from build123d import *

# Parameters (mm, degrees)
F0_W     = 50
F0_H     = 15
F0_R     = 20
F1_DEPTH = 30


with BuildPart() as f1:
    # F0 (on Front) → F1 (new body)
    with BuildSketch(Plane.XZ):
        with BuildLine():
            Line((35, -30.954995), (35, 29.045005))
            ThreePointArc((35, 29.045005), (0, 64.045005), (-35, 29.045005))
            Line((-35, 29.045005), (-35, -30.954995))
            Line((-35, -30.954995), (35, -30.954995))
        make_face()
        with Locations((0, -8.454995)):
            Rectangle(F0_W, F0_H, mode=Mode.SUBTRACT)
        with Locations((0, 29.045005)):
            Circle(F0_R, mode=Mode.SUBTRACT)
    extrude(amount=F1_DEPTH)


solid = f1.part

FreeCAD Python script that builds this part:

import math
import FreeCAD as App
import Part
import Sketcher

V = App.Vector


def add_polygon(sketch, points):
    """Adds a closed chain of lines whose ends are joined by coincident constraints."""
    first, n = sketch.GeometryCount, len(points)
    for a, b in zip(points, points[1:] + points[:1]):
        sketch.addGeometry(Part.LineSegment(App.Vector(*a, 0), App.Vector(*b, 0)), False)
    for i in range(n):
        sketch.addConstraint(Sketcher.Constraint("Coincident", first + i, 2, first + (i + 1) % n, 1))

doc = App.newDocument("Part")
params = doc.addObject("Spreadsheet::Sheet", "Params")
for row, (alias, value) in enumerate([
    ("sketch1_diameter", "40 mm"),
    ("sketch1_radius", "35 mm"),
    ("sketch1_width", "50 mm"),
    ("sketch1_height", "60 mm"),
    ("sketch1_height2", "15 mm"),
    ("pad1_length", "30 mm"),
], start=1):
    params.set(f"A{row}", alias)
    params.set(f"B{row}", "=" + value)
    params.setAlias(f"B{row}", alias)

body = doc.addObject("PartDesign::Body", "Body")

# Sketch on XZ plane
sketch1 = body.newObject("Sketcher::SketchObject", "Sketch")
sketch1.AttachmentSupport = (doc.getObject("XZ_Plane"), [""])
sketch1.MapMode = "FlatFace"
sketch1.addGeometry(Part.LineSegment(V(35, -31, 0), V(35, 29, 0)), False)  # 0
sketch1.addGeometry(Part.ArcOfCircle(Part.Circle(V(0, 29, 0), V(0, 0, 1), 35), math.radians(0), math.radians(180)), False)  # 1
sketch1.addGeometry(Part.LineSegment(V(-35, 29, 0), V(-35, -31, 0)), False)  # 2
sketch1.addGeometry(Part.LineSegment(V(-35, -31, 0), V(35, -31, 0)), False)  # 3
add_polygon(sketch1, [(25, -16), (-25, -16), (-25, -1), (25, -1)])  # lines 4-7
sketch1.addGeometry(Part.Circle(V(0, 29, 0), V(0, 0, 1), 20), False)  # 8
sketch1.addConstraint([
    Sketcher.Constraint("Tangent", 0, 2, 1, 1),
    Sketcher.Constraint("Tangent", 1, 2, 2, 1),
    Sketcher.Constraint("Coincident", 2, 2, 3, 1),
    Sketcher.Constraint("Coincident", 3, 2, 0, 1),
    Sketcher.Constraint("Vertical", 0),
    Sketcher.Constraint("Vertical", 2),
    Sketcher.Constraint("Horizontal", 3),
    Sketcher.Constraint("Horizontal", 4),
    Sketcher.Constraint("Vertical", 5),
    Sketcher.Constraint("Horizontal", 6),
    Sketcher.Constraint("Vertical", 7),
    Sketcher.Constraint("Coincident", 8, 3, 1, 3),
    Sketcher.Constraint("PointOnObject", 1, 3, -2),
    Sketcher.Constraint("Diameter", 8, 40.0),
    Sketcher.Constraint("Radius", 1, 35.0),
    Sketcher.Constraint("DistanceX", 4, 2, 4, 1, 50.0),
    Sketcher.Constraint("DistanceY", 0, 1, 0, 2, 60.0),
    Sketcher.Constraint("DistanceY", 5, 1, 5, 2, 15.0),
    Sketcher.Constraint("DistanceX", 4, 2, -1, 1, 25.0),
    Sketcher.Constraint("DistanceY", 2, 2, 4, 2, 15.0),
    Sketcher.Constraint("DistanceY", -1, 1, 1, 3, 29.045005),
])
sketch1.setExpression("Constraints[17]", "Params.sketch1_diameter")
sketch1.setExpression("Constraints[18]", "Params.sketch1_radius")
sketch1.setExpression("Constraints[19]", "Params.sketch1_width")
sketch1.setExpression("Constraints[20]", "Params.sketch1_height")
sketch1.setExpression("Constraints[21]", "Params.sketch1_height2")
pad1 = body.newObject("PartDesign::Pad", "Pad")
pad1.Profile = sketch1
pad1.setExpression("Length", "Params.pad1_length")

doc.recompute()
